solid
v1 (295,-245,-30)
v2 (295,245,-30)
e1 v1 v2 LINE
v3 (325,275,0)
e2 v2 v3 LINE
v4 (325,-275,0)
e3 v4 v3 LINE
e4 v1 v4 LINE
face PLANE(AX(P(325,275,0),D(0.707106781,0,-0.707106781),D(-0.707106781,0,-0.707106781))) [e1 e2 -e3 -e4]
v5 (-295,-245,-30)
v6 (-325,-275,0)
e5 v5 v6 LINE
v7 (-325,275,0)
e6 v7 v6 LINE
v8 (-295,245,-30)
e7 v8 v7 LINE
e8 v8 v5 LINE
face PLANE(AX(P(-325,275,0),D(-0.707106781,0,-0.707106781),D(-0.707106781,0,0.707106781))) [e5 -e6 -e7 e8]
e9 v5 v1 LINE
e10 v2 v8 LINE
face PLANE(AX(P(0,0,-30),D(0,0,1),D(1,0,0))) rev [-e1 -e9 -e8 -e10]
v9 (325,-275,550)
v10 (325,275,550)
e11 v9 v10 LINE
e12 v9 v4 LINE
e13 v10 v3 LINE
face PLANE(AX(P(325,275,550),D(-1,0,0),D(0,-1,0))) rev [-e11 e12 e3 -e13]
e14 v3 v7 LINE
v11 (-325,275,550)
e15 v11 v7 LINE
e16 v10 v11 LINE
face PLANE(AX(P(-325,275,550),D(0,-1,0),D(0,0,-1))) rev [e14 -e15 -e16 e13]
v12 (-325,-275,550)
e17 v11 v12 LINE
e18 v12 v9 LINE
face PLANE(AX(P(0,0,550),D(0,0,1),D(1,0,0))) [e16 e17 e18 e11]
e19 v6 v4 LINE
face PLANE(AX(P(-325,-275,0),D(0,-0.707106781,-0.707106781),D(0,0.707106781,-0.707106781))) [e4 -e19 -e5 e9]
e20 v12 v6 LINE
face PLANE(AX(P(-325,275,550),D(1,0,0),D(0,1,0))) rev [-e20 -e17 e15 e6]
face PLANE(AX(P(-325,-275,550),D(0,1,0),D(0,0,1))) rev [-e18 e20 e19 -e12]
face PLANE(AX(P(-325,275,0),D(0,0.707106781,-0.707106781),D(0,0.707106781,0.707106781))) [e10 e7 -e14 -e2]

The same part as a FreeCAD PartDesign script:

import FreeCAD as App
import Part
import Sketcher
from FreeCAD import Vector

doc = App.newDocument("Part")
params = doc.addObject("Spreadsheet::Sheet", "Params")
for row, (alias, value) in enumerate([
    ("sketch1_width", "650 mm"),
    ("sketch1_height", "550 mm"),
    ("pad1_length", "550 mm"),
    ("sketch2_width", "650 mm"),
    ("sketch2_height", "550 mm"),
    ("pad2_length", "30 mm"),
    ("pad2_taper", "-45 deg"),
], start=1):
    params.set(f"A{row}", alias)
    params.set(f"B{row}", "=" + value)
    params.setAlias(f"B{row}", alias)

body = doc.addObject("PartDesign::Body", "Body")

# Sketch on XY plane
sketch1 = body.newObject("Sketcher::SketchObject", "Sketch")
sketch1.AttachmentSupport = (doc.getObject("XY_Plane"), [""])
sketch1.MapMode = "FlatFace"
sketch1.addGeometry(Part.LineSegment(Vector(-325, 275, 0), Vector(-325, -275, 0)), False)
sketch1.addGeometry(Part.LineSegment(Vector(-325, -275, 0), Vector(325, -275, 0)), False)
sketch1.addGeometry(Part.LineSegment(Vector(325, -275, 0), Vector(325, 275, 0)), False)
sketch1.addGeometry(Part.LineSegment(Vector(325, 275, 0), Vector(-325, 275, 0)), False)
sketch1.addConstraint(Sketcher.Constraint("Coincident", 0, 2, 1, 1))
sketch1.addConstraint(Sketcher.Constraint("Coincident", 1, 2, 2, 1))
sketch1.addConstraint(Sketcher.Constraint("Coincident", 2, 2, 3, 1))
sketch1.addConstraint(Sketcher.Constraint("Coincident", 3, 2, 0, 1))
sketch1.addConstraint(Sketcher.Constraint("Vertical", 0))
sketch1.addConstraint(Sketcher.Constraint("Horizontal", 1))
sketch1.addConstraint(Sketcher.Constraint("Vertical", 2))
sketch1.addConstraint(Sketcher.Constraint("Horizontal", 3))
sketch1.addConstraint(Sketcher.Constraint("Symmetric", 0, 2, 2, 2, -1, 1))
sketch1.addConstraint(Sketcher.Constraint("DistanceX", 1, 1, 1, 2, 650.0))
sketch1.addConstraint(Sketcher.Constraint("DistanceY", 0, 2, 0, 1, 550.0))
sketch1.setExpression("Constraints[9]", "Params.sketch1_width")
sketch1.setExpression("Constraints[10]", "Params.sketch1_height")
pad1 = body.newObject("PartDesign::Pad", "Pad")
pad1.Profile = sketch1
pad1.setExpression("Length", "Params.pad1_length")

# Sketch on XY plane
sketch2 = body.newObject("Sketcher::SketchObject", "Sketch001")
sketch2.AttachmentSupport = (doc.getObject("XY_Plane"), [""])
sketch2.MapMode = "FlatFace"
sketch2.addGeometry(Part.LineSegment(Vector(-325, 275, 0), Vector(-325, -275, 0)), False)
sketch2.addGeometry(Part.LineSegment(Vector(-325, -275, 0), Vector(325, -275, 0)), False)
sketch2.addGeometry(Part.LineSegment(Vector(325, -275, 0), Vector(325, 275, 0)), False)
sketch2.addGeometry(Part.LineSegment(Vector(325, 275, 0), Vector(-325, 275, 0)), False)
sketch2.addConstraint(Sketcher.Constraint("Coincident", 0, 2, 1, 1))
sketch2.addConstraint(Sketcher.Constraint("Coincident", 1, 2, 2, 1))
sketch2.addConstraint(Sketcher.Constraint("Coincident", 2, 2, 3, 1))
sketch2.addConstraint(Sketcher.Constraint("Coincident", 3, 2, 0, 1))
sketch2.addConstraint(Sketcher.Constraint("Vertical", 0))
sketch2.addConstraint(Sketcher.Constraint("Horizontal", 1))
sketch2.addConstraint(Sketcher.Constraint("Vertical", 2))
sketch2.addConstraint(Sketcher.Constraint("Horizontal", 3))
sketch2.addConstraint(Sketcher.Constraint("Symmetric", 0, 2, 2, 2, -1, 1))
sketch2.addConstraint(Sketcher.Constraint("DistanceX", 1, 1, 1, 2, 650.0))
sketch2.addConstraint(Sketcher.Constraint("DistanceY", 0, 2, 0, 1, 550.0))
sketch2.setExpression("Constraints[9]", "Params.sketch2_width")
sketch2.setExpression("Constraints[10]", "Params.sketch2_height")
pad2 = body.newObject("PartDesign::Pad", "Pad001")
pad2.Profile = sketch2
pad2.setExpression("Length", "Params.pad2_length")
pad2.Reversed = True
pad2.setExpression("TaperAngle", "Params.pad2_taper")

doc.recompute()
